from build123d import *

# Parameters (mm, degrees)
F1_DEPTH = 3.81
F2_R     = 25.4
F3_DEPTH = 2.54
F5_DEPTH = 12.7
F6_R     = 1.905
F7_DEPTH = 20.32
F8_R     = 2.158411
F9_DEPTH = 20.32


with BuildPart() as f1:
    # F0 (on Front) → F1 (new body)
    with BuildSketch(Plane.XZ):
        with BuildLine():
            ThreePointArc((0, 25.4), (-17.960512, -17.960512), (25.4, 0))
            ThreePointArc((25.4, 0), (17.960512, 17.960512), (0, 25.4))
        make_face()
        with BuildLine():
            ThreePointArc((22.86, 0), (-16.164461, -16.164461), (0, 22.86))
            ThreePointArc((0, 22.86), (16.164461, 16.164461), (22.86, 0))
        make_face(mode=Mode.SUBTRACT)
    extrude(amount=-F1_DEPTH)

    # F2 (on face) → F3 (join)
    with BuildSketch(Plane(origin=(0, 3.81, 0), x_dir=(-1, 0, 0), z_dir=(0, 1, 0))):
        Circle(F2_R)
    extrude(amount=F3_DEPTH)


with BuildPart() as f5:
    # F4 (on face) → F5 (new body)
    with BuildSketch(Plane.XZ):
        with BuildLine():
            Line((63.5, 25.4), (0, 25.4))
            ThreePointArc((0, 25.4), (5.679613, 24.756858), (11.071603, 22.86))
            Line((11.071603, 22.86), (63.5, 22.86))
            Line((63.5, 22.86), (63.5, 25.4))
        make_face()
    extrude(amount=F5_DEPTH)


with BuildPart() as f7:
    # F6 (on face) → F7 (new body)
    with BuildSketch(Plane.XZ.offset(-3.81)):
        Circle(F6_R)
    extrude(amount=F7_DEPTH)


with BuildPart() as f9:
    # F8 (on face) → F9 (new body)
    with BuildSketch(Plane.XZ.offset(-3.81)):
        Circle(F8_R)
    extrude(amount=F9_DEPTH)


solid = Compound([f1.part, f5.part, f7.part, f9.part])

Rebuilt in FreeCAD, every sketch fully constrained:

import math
import FreeCAD as App
import Part
import Sketcher

V = App.Vector
Q = App.Units.Quantity

doc = App.newDocument("Part")
body = doc.addObject("PartDesign::Body", "Body")

sketch1 = body.newObject("Sketcher::SketchObject", "Sketch")
sketch1.AttachmentSupport = (doc.getObject("XZ_Plane"), [""])
sketch1.MapMode = "FlatFace"
sketch1.addGeometry([
    Part.ArcOfCircle(Part.Circle(V(0, 0, 0), V(0, 0, 1), 25.4), math.radians(90), math.radians(360)),
    Part.ArcOfCircle(Part.Circle(V(-0.000001, -0.000001, 0), V(0, 0, 1), 25.400001), math.radians(0.000002), math.radians(89.999998)),
    Part.ArcOfCircle(Part.Circle(V(0, 0, 0), V(0, 0, 1), 22.86), math.radians(0), math.radians(90)),
    Part.ArcOfCircle(Part.Circle(V(0, 0, 0), V(0, 0, 1), 22.86), math.radians(90), math.radians(360)),
], False)
sketch1.addConstraint([
    Sketcher.Constraint("Tangent", 0, 1, 1, 2),
    Sketcher.Constraint("Coincident", 1, 1, 0, 2),
    Sketcher.Constraint("Tangent", 2, 1, 3, 2),
    Sketcher.Constraint("Coincident", 3, 1, 2, 2),
    Sketcher.Constraint("Coincident", 0, 3, -1, 1),
    Sketcher.Constraint("Coincident", 2, 3, -1, 1),
    Sketcher.Constraint("PointOnObject", 0, 1, -2),
    Sketcher.Constraint("PointOnObject", 1, 1, -1),
    Sketcher.Constraint("PointOnObject", 2, 1, -1),
    Sketcher.Constraint("PointOnObject", 3, 1, -2),
    Sketcher.Constraint("Radius", 0, Q("1 in")),
    Sketcher.Constraint("Radius", 2, Q("0.9 in")),
])
pad1 = body.newObject("PartDesign::Pad", "Pad")
pad1.Profile = sketch1
pad1.Length = Q("0.15 in")
pad1.Reversed = True

sketch2 = body.newObject("Sketcher::SketchObject", "Sketch001")
sketch2.AttachmentSupport = (doc.getObject("XZ_Plane"), [""])
sketch2.MapMode = "FlatFace"
sketch2.AttachmentOffset = App.Placement(V(0, 0, -0.15 * 25.4), App.Rotation())
sketch2.addGeometry(Part.Circle(V(0, 0, 0), V(0, 0, 1), 25.4), False)
sketch2.addConstraint([
    Sketcher.Constraint("Coincident", 0, 3, -1, 1),
    Sketcher.Constraint("Diameter", 0, Q("2 in")),
])
pad2 = body.newObject("PartDesign::Pad", "Pad001")
pad2.Profile = sketch2
pad2.Length = Q("0.1 in")
pad2.Reversed = True
body2 = doc.addObject("PartDesign::Body", "Body001")

sketch3 = body2.newObject("Sketcher::SketchObject", "Sketch002")
sketch3.AttachmentSupport = (doc.getObject("XZ_Plane001"), [""])
sketch3.MapMode = "FlatFace"
sketch3.addGeometry([
    Part.LineSegment(V(63.5, 25.4, 0), V(0, 25.4, 0)),
    Part.ArcOfCircle(Part.Circle(V(0.000004, 0.000019, 0), V(0, 0, 1), 25.399981), math.radians(64.158057), math.radians(90.000009)),
    Part.LineSegment(V(11.071603, 22.86, 0), V(63.5, 22.86, 0)),
    Part.LineSegment(V(63.5, 22.86, 0), V(63.5, 25.4, 0)),
], False)
sketch3.addConstraint([
    Sketcher.Constraint("Tangent", 0, 2, 1, 2),
    Sketcher.Constraint("Coincident", 1, 1, 2, 1),
    Sketcher.Constraint("Coincident", 2, 2, 3, 1),
    Sketcher.Constraint("Coincident", 3, 2, 0, 1),
    Sketcher.Constraint("Horizontal", 0),
    Sketcher.Constraint("Horizontal", 2),
    Sketcher.Constraint("Vertical", 3),
    Sketcher.Constraint("PointOnObject", 0, 2, -2),
    Sketcher.Constraint("DistanceX", 0, 2, 0, 1, Q("2.5 in")),
    Sketcher.Constraint("DistanceY", 3, 1, 3, 2, Q("0.1 in")),
    Sketcher.Constraint("DistanceY", -1, 1, 0, 2, Q("1 in")),
    Sketcher.Constraint("Radius", 1, Q("25.399981 mm")),
])
pad3 = body2.newObject("PartDesign::Pad", "Pad002")
pad3.Profile = sketch3
pad3.Length = Q("0.5 in")
body3 = doc.addObject("PartDesign::Body", "Body002")

sketch4 = body3.newObject("Sketcher::SketchObject", "Sketch003")
sketch4.AttachmentSupport = (doc.getObject("XZ_Plane002"), [""])
sketch4.MapMode = "FlatFace"
sketch4.AttachmentOffset = App.Placement(V(0, 0, -0.15 * 25.4), App.Rotation())
sketch4.addGeometry(Part.Circle(V(0, 0, 0), V(0, 0, 1), 1.905), False)
sketch4.addConstraint([
    Sketcher.Constraint("Coincident", 0, 3, -1, 1),
    Sketcher.Constraint("Diameter", 0, Q("0.15 in")),
])
pad4 = body3.newObject("PartDesign::Pad", "Pad003")
pad4.Profile = sketch4
pad4.Length = Q("0.8 in")
body4 = doc.addObject("PartDesign::Body", "Body003")

sketch5 = body4.newObject("Sketcher::SketchObject", "Sketch004")
sketch5.AttachmentSupport = (doc.getObject("XZ_Plane003"), [""])
sketch5.MapMode = "FlatFace"
sketch5.AttachmentOffset = App.Placement(V(0, 0, -0.15 * 25.4), App.Rotation())
sketch5.addGeometry(Part.Circle(V(0, 0, 0), V(0, 0, 1), 2.158411), False)
sketch5.addConstraint([
    Sketcher.Constraint("Coincident", 0, 3, -1, 1),
    Sketcher.Constraint("Diameter", 0, Q("4.316822 mm")),
])
pad5 = body4.newObject("PartDesign::Pad", "Pad004")
pad5.Profile = sketch5
pad5.Length = Q("0.8 in")

doc.recompute()
